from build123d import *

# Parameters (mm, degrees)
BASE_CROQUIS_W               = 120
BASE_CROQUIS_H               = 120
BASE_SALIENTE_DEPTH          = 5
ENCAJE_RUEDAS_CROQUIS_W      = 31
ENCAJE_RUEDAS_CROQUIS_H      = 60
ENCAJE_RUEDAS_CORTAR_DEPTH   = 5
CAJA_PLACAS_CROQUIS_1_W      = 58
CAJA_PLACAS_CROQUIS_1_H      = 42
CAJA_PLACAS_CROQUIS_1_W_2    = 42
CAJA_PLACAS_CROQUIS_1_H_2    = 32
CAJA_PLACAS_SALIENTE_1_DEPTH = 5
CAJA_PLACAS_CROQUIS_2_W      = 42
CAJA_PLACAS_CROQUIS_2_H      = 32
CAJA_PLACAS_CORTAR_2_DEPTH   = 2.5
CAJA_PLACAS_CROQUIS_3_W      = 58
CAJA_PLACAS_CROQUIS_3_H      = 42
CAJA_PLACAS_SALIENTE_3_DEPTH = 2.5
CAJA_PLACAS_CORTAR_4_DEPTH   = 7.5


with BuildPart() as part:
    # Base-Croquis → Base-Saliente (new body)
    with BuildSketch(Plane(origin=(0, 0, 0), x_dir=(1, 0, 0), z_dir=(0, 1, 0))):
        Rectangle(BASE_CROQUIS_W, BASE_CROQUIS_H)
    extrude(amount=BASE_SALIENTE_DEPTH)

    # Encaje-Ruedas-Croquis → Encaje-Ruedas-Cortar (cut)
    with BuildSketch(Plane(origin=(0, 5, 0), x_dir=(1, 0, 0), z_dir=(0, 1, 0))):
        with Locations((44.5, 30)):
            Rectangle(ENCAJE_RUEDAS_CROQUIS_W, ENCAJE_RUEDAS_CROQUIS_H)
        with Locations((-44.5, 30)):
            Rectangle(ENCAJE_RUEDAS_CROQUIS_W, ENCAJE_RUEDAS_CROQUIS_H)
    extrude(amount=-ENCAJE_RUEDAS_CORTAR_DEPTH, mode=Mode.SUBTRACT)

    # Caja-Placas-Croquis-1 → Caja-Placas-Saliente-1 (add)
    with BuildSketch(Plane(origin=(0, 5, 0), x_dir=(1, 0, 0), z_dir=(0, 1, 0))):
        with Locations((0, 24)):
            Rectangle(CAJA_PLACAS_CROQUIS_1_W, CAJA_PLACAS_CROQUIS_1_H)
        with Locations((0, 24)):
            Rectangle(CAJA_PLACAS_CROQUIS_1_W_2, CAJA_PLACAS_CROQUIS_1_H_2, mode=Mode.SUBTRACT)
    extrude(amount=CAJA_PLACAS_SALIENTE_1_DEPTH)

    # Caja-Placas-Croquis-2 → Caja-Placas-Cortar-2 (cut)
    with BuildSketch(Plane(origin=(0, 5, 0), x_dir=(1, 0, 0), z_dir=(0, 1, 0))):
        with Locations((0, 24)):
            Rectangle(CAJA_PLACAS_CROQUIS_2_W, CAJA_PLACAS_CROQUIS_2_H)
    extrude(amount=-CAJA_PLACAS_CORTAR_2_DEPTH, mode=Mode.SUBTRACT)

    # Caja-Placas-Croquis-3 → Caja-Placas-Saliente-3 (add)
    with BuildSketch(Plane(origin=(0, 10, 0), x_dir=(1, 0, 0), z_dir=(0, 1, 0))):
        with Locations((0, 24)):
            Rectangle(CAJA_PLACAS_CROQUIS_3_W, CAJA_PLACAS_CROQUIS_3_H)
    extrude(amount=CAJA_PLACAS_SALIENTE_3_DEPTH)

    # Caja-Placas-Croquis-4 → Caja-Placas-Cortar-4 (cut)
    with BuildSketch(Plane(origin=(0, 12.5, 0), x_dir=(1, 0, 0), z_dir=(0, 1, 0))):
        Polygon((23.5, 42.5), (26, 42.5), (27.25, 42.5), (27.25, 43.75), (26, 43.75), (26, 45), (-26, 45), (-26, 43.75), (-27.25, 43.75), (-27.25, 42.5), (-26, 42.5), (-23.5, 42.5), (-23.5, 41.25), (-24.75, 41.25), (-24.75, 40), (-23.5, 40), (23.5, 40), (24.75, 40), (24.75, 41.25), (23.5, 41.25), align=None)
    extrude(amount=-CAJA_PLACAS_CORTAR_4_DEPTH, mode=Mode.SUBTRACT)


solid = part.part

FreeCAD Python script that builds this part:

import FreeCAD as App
import Part
import Sketcher

V = App.Vector
Q = App.Units.Quantity

doc = App.newDocument("Part")
params = doc.addObject("Spreadsheet::Sheet", "Params")
for row, (alias, value) in enumerate([
    ("sketch1_width", "120 mm"),
    ("pad1_length", "5 mm"),
    ("sketch2_width", "31 mm"),
    ("sketch2_height", "60 mm"),
    ("pocket1_length", "5 mm"),
    ("sketch3_width", "58 mm"),
    ("sketch3_width2", "42 mm"),
    ("sketch3_height", "32 mm"),
    ("pad2_length", "5 mm"),
    ("sketch4_width", "42 mm"),
    ("sketch4_height", "32 mm"),
    ("pocket2_length", "2.5 mm"),
    ("sketch5_width", "58 mm"),
    ("sketch5_height", "42 mm"),
    ("pad3_length", "2.5 mm"),
    ("sketch6_width", "52 mm"),
    ("sketch6_width2", "49.5 mm"),
    ("pocket3_length", "7.5 mm"),
], start=1):
    params.set(f"A{row}", alias)
    params.set(f"B{row}", "=" + value)
    params.setAlias(f"B{row}", alias)

body = doc.addObject("PartDesign::Body", "Body")

# Sketch on XZ plane
sketch1 = body.newObject("Sketcher::SketchObject", "Sketch")
sketch1.AttachmentSupport = (doc.getObject("XZ_Plane"), [""])
sketch1.MapMode = "FlatFace"
sketch1.addGeometry(Part.LineSegment(V(-60, -60, 0), V(-60, 60, 0)), False)
sketch1.addGeometry(Part.LineSegment(V(-60, 60, 0), V(60, 60, 0)), False)
sketch1.addGeometry(Part.LineSegment(V(60, 60, 0), V(60, -60, 0)), False)
sketch1.addGeometry(Part.LineSegment(V(60, -60, 0), V(-60, -60, 0)), False)
sketch1.addConstraint(Sketcher.Constraint("Coincident", 0, 2, 1, 1))
sketch1.addConstraint(Sketcher.Constraint("Coincident", 1, 2, 2, 1))
sketch1.addConstraint(Sketcher.Constraint("Coincident", 2, 2, 3, 1))
sketch1.addConstraint(Sketcher.Constraint("Coincident", 3, 2, 0, 1))
sketch1.addConstraint(Sketcher.Constraint("Vertical", 0))
sketch1.addConstraint(Sketcher.Constraint("Horizontal", 1))
sketch1.addConstraint(Sketcher.Constraint("Vertical", 2))
sketch1.addConstraint(Sketcher.Constraint("Horizontal", 3))
sketch1.addConstraint(Sketcher.Constraint("Symmetric", 0, 2, 2, 2, -1, 1))
sketch1.addConstraint(Sketcher.Constraint("Equal", 3, 0))
sketch1.addConstraint(Sketcher.Constraint("DistanceX", 1, 1, 1, 2, Q("120 mm")))
sketch1.setExpression("Constraints[10]", "Params.sketch1_width")
pad1 = body.newObject("PartDesign::Pad", "Pad")
pad1.Profile = sketch1
pad1.setExpression("Length", "Params.pad1_length")
pad1.Reversed = True

# Sketch on XZ plane
sketch2 = body.newObject("Sketcher::SketchObject", "Sketch001")
sketch2.AttachmentSupport = (doc.getObject("XZ_Plane"), [""])
sketch2.MapMode = "FlatFace"
sketch2.AttachmentOffset = App.Placement(V(0, 0, -5), App.Rotation())
sketch2.addGeometry(Part.LineSegment(V(29, -60, 0), V(29, 0, 0)), False)
sketch2.addGeometry(Part.LineSegment(V(29, 0, 0), V(60, 0, 0)), False)
sketch2.addGeometry(Part.LineSegment(V(60, 0, 0), V(60, -60, 0)), False)
sketch2.addGeometry(Part.LineSegment(V(60, -60, 0), V(29, -60, 0)), False)
sketch2.addGeometry(Part.LineSegment(V(-60, -60, 0), V(-60, 0, 0)), False)
sketch2.addGeometry(Part.LineSegment(V(-60, 0, 0), V(-29, 0, 0)), False)
sketch2.addGeometry(Part.LineSegment(V(-29, 0, 0), V(-29, -60, 0)), False)
sketch2.addGeometry(Part.LineSegment(V(-29, -60, 0), V(-60, -60, 0)), False)
sketch2.addConstraint(Sketcher.Constraint("Coincident", 0, 2, 1, 1))
sketch2.addConstraint(Sketcher.Constraint("Coincident", 1, 2, 2, 1))
sketch2.addConstraint(Sketcher.Constraint("Coincident", 2, 2, 3, 1))
sketch2.addConstraint(Sketcher.Constraint("Coincident", 3, 2, 0, 1))
sketch2.addConstraint(Sketcher.Constraint("Coincident", 4, 2, 5, 1))
sketch2.addConstraint(Sketcher.Constraint("Coincident", 5, 2, 6, 1))
sketch2.addConstraint(Sketcher.Constraint("Coincident", 6, 2, 7, 1))
sketch2.addConstraint(Sketcher.Constraint("Coincident", 7, 2, 4, 1))
sketch2.addConstraint(Sketcher.Constraint("Vertical", 0))
sketch2.addConstraint(Sketcher.Constraint("Horizontal", 1))
sketch2.addConstraint(Sketcher.Constraint("Vertical", 2))
sketch2.addConstraint(Sketcher.Constraint("Horizontal", 3))
sketch2.addConstraint(Sketcher.Constraint("Vertical", 4))
sketch2.addConstraint(Sketcher.Constraint("Horizontal", 5))
sketch2.addConstraint(Sketcher.Constraint("Vertical", 6))
sketch2.addConstraint(Sketcher.Constraint("Horizontal", 7))
sketch2.addConstraint(Sketcher.Constraint("Symmetric", 1, 2, 4, 2, -1, 1))
sketch2.addConstraint(Sketcher.Constraint("Symmetric", 0, 2, 5, 2, -2))
sketch2.addConstraint(Sketcher.Constraint("Horizontal", 3, 2, 6, 2))
sketch2.addConstraint(Sketcher.Constraint("DistanceX", 1, 1, 1, 2, Q("31 mm")))
sketch2.addConstraint(Sketcher.Constraint("DistanceY", 0, 1, 0, 2, Q("60 mm")))
sketch2.addConstraint(Sketcher.Constraint("DistanceX", -1, 1, 0, 2, Q("29 mm")))
sketch2.setExpression("Constraints[19]", "Params.sketch2_width")
sketch2.setExpression("Constraints[20]", "Params.sketch2_height")
pocket1 = body.newObject("PartDesign::Pocket", "Pocket")
pocket1.Profile = sketch2
pocket1.setExpression("Length", "Params.pocket1_length")
pocket1.Reversed = True

# Sketch on XZ plane
sketch3 = body.newObject("Sketcher::SketchObject", "Sketch002")
sketch3.AttachmentSupport = (doc.getObject("XZ_Plane"), [""])
sketch3.MapMode = "FlatFace"
sketch3.AttachmentOffset = App.Placement(V(0, 0, -5), App.Rotation())
sketch3.addGeometry(Part.LineSegment(V(-29, -45, 0), V(-29, -3, 0)), False)
sketch3.addGeometry(Part.LineSegment(V(-29, -3, 0), V(29, -3, 0)), False)
sketch3.addGeometry(Part.LineSegment(V(29, -3, 0), V(29, -45, 0)), False)
sketch3.addGeometry(Part.LineSegment(V(29, -45, 0), V(-29, -45, 0)), False)
sketch3.addGeometry(Part.LineSegment(V(21, -8, 0), V(-21, -8, 0)), False)
sketch3.addGeometry(Part.LineSegment(V(-21, -8, 0), V(-21, -40, 0)), False)
sketch3.addGeometry(Part.LineSegment(V(-21, -40, 0), V(21, -40, 0)), False)
sketch3.addGeometry(Part.LineSegment(V(21, -40, 0), V(21, -8, 0)), False)
sketch3.addConstraint(Sketcher.Constraint("Coincident", 0, 2, 1, 1))
sketch3.addConstraint(Sketcher.Constraint("Coincident", 1, 2, 2, 1))
sketch3.addConstraint(Sketcher.Constraint("Coincident", 2, 2, 3, 1))
sketch3.addConstraint(Sketcher.Constraint("Coincident", 3, 2, 0, 1))
sketch3.addConstraint(Sketcher.Constraint("Coincident", 4, 2, 5, 1))
sketch3.addConstraint(Sketcher.Constraint("Coincident", 5, 2, 6, 1))
sketch3.addConstraint(Sketcher.Constraint("Coincident", 6, 2, 7, 1))
sketch3.addConstraint(Sketcher.Constraint("Coincident", 7, 2, 4, 1))
sketch3.addConstraint(Sketcher.Constraint("Vertical", 0))
sketch3.addConstraint(Sketcher.Constraint("Horizontal", 1))
sketch3.addConstraint(Sketcher.Constraint("Vertical", 2))
sketch3.addConstraint(Sketcher.Constraint("Horizontal", 3))
sketch3.addConstraint(Sketcher.Constraint("Horizontal", 4))
sketch3.addConstraint(Sketcher.Constraint("Vertical", 5))
sketch3.addConstraint(Sketcher.Constraint("Horizontal", 6))
sketch3.addConstraint(Sketcher.Constraint("Vertical", 7))
sketch3.addConstraint(Sketcher.Constraint("Equal", 6, 0))
sketch3.addConstraint(Sketcher.Constraint("DistanceX", 1, 1, 1, 2, Q("58 mm")))
sketch3.addConstraint(Sketcher.Constraint("DistanceX", 4, 2, 4, 1, Q("42 mm")))
sketch3.addConstraint(Sketcher.Constraint("DistanceY", 5, 2, 5, 1, Q("32 mm")))
sketch3.addConstraint(Sketcher.Constraint("DistanceX", 0, 2, -1, 1, Q("29 mm")))
sketch3.addConstraint(Sketcher.Constraint("DistanceY", 0, 2, -1, 1, Q("3 mm")))
sketch3.addConstraint(Sketcher.Constraint("DistanceX", 4, 2, -1, 1, Q("21 mm")))
sketch3.addConstraint(Sketcher.Constraint("DistanceY", 4, 2, -1, 1, Q("8 mm")))
sketch3.setExpression("Constraints[17]", "Params.sketch3_width")
sketch3.setExpression("Constraints[18]", "Params.sketch3_width2")
sketch3.setExpression("Constraints[19]", "Params.sketch3_height")
pad2 = body.newObject("PartDesign::Pad", "Pad001")
pad2.Profile = sketch3
pad2.setExpression("Length", "Params.pad2_length")
pad2.Reversed = True

# Sketch on XZ plane
sketch4 = body.newObject("Sketcher::SketchObject", "Sketch003")
sketch4.AttachmentSupport = (doc.getObject("XZ_Plane"), [""])
sketch4.MapMode = "FlatFace"
sketch4.AttachmentOffset = App.Placement(V(0, 0, -5), App.Rotation())
sketch4.addGeometry(Part.LineSegment(V(-21, -40, 0), V(-21, -8, 0)), False)
sketch4.addGeometry(Part.LineSegment(V(-21, -8, 0), V(21, -8, 0)), False)
sketch4.addGeometry(Part.LineSegment(V(21, -8, 0), V(21, -40, 0)), False)
sketch4.addGeometry(Part.LineSegment(V(21, -40, 0), V(-21, -40, 0)), False)
sketch4.addConstraint(Sketcher.Constraint("Coincident", 0, 2, 1, 1))
sketch4.addConstraint(Sketcher.Constraint("Coincident", 1, 2, 2, 1))
sketch4.addConstraint(Sketcher.Constraint("Coincident", 2, 2, 3, 1))
sketch4.addConstraint(Sketcher.Constraint("Coincident", 3, 2, 0, 1))
sketch4.addConstraint(Sketcher.Constraint("Vertical", 0))
sketch4.addConstraint(Sketcher.Constraint("Horizontal", 1))
sketch4.addConstraint(Sketcher.Constraint("Vertical", 2))
sketch4.addConstraint(Sketcher.Constraint("Horizontal", 3))
sketch4.addConstraint(Sketcher.Constraint("DistanceX", 1, 1, 1, 2, Q("42 mm")))
sketch4.addConstraint(Sketcher.Constraint("DistanceY", 0, 1, 0, 2, Q("32 mm")))
sketch4.addConstraint(Sketcher.Constraint("DistanceX", 0, 2, -1, 1, Q("21 mm")))
sketch4.addConstraint(Sketcher.Constraint("DistanceY", 0, 2, -1, 1, Q("8 mm")))
sketch4.setExpression("Constraints[8]", "Params.sketch4_width")
sketch4.setExpression("Constraints[9]", "Params.sketch4_height")
pocket2 = body.newObject("PartDesign::Pocket", "Pocket001")
pocket2.Profile = sketch4
pocket2.setExpression("Length", "Params.pocket2_length")
pocket2.Reversed = True

# Sketch on XZ plane
sketch5 = body.newObject("Sketcher::SketchObject", "Sketch004")
sketch5.AttachmentSupport = (doc.getObject("XZ_Plane"), [""])
sketch5.MapMode = "FlatFace"
sketch5.AttachmentOffset = App.Placement(V(0, 0, -10), App.Rotation())
sketch5.addGeometry(Part.LineSegment(V(-29, -45, 0), V(-29, -3, 0)), False)
sketch5.addGeometry(Part.LineSegment(V(-29, -3, 0), V(29, -3, 0)), False)
sketch5.addGeometry(Part.LineSegment(V(29, -3, 0), V(29, -45, 0)), False)
sketch5.addGeometry(Part.LineSegment(V(29, -45, 0), V(-29, -45, 0)), False)
sketch5.addConstraint(Sketcher.Constraint("Coincident", 0, 2, 1, 1))
sketch5.addConstraint(Sketcher.Constraint("Coincident", 1, 2, 2, 1))
sketch5.addConstraint(Sketcher.Constraint("Coincident", 2, 2, 3, 1))
sketch5.addConstraint(Sketcher.Constraint("Coincident", 3, 2, 0, 1))
sketch5.addConstraint(Sketcher.Constraint("Vertical", 0))
sketch5.addConstraint(Sketcher.Constraint("Horizontal", 1))
sketch5.addConstraint(Sketcher.Constraint("Vertical", 2))
sketch5.addConstraint(Sketcher.Constraint("Horizontal", 3))
sketch5.addConstraint(Sketcher.Constraint("DistanceX", 1, 1, 1, 2, Q("58 mm")))
sketch5.addConstraint(Sketcher.Constraint("DistanceY", 0, 1, 0, 2, Q("42 mm")))
sketch5.addConstraint(Sketcher.Constraint("DistanceX", 0, 2, -1, 1, Q("29 mm")))
sketch5.addConstraint(Sketcher.Constraint("DistanceY", 0, 2, -1, 1, Q("3 mm")))
sketch5.setExpression("Constraints[8]", "Params.sketch5_width")
sketch5.setExpression("Constraints[9]", "Params.sketch5_height")
pad3 = body.newObject("PartDesign::Pad", "Pad002")
pad3.Profile = sketch5
pad3.setExpression("Length", "Params.pad3_length")
pad3.Reversed = True

# Sketch on XZ plane
sketch6 = body.newObject("Sketcher::SketchObject", "Sketch005")
sketch6.AttachmentSupport = (doc.getObject("XZ_Plane"), [""])
sketch6.MapMode = "FlatFace"
sketch6.AttachmentOffset = App.Placement(V(0, 0, -12.5), App.Rotation())
sketch6.addGeometry(Part.LineSegment(V(23.5, -42.5, 0), V(27.25, -42.5, 0)), False)
sketch6.addGeometry(Part.LineSegment(V(27.25, -42.5, 0), V(27.25, -43.75, 0)), False)
sketch6.addGeometry(Part.LineSegment(V(27.25, -43.75, 0), V(26, -43.75, 0)), False)
sketch6.addGeometry(Part.LineSegment(V(26, -43.75, 0), V(26, -45, 0)), False)
sketch6.addGeometry(Part.LineSegment(V(26, -45, 0), V(-26, -45, 0)), False)
sketch6.addGeometry(Part.LineSegment(V(-26, -45, 0), V(-26, -43.75, 0)), False)
sketch6.addGeometry(Part.LineSegment(V(-26, -43.75, 0), V(-27.25, -43.75, 0)), False)
sketch6.addGeometry(Part.LineSegment(V(-27.25, -43.75, 0), V(-27.25, -42.5, 0)), False)
sketch6.addGeometry(Part.LineSegment(V(-27.25, -42.5, 0), V(-23.5, -42.5, 0)), False)
sketch6.addGeometry(Part.LineSegment(V(-23.5, -42.5, 0), V(-23.5, -41.25, 0)), False)
sketch6.addGeometry(Part.LineSegment(V(-23.5, -41.25, 0), V(-24.75, -41.25, 0)), False)
sketch6.addGeometry(Part.LineSegment(V(-24.75, -41.25, 0), V(-24.75, -40, 0)), False)
sketch6.addGeometry(Part.LineSegment(V(-24.75, -40, 0), V(24.75, -40, 0)), False)
sketch6.addGeometry(Part.LineSegment(V(24.75, -40, 0), V(24.75, -41.25, 0)), False)
sketch6.addGeometry(Part.LineSegment(V(24.75, -41.25, 0), V(23.5, -41.25, 0)), False)
sketch6.addGeometry(Part.LineSegment(V(23.5, -41.25, 0), V(23.5, -42.5, 0)), False)
sketch6.addConstraint(Sketcher.Constraint("Coincident", 0, 2, 1, 1))
sketch6.addConstraint(Sketcher.Constraint("Coincident", 1, 2, 2, 1))
sketch6.addConstraint(Sketcher.Constraint("Coincident", 2, 2, 3, 1))
sketch6.addConstraint(Sketcher.Constraint("Coincident", 3, 2, 4, 1))
sketch6.addConstraint(Sketcher.Constraint("Coincident", 4, 2, 5, 1))
sketch6.addConstraint(Sketcher.Constraint("Coincident", 5, 2, 6, 1))
sketch6.addConstraint(Sketcher.Constraint("Coincident", 6, 2, 7, 1))
sketch6.addConstraint(Sketcher.Constraint("Coincident", 7, 2, 8, 1))
sketch6.addConstraint(Sketcher.Constraint("Coincident", 8, 2, 9, 1))
sketch6.addConstraint(Sketcher.Constraint("Coincident", 9, 2, 10, 1))
sketch6.addConstraint(Sketcher.Constraint("Coincident", 10, 2, 11, 1))
sketch6.addConstraint(Sketcher.Constraint("Coincident", 11, 2, 12, 1))
sketch6.addConstraint(Sketcher.Constraint("Coincident", 12, 2, 13, 1))
sketch6.addConstraint(Sketcher.Constraint("Coincident", 13, 2, 14, 1))
sketch6.addConstraint(Sketcher.Constraint("Coincident", 14, 2, 15, 1))
sketch6.addConstraint(Sketcher.Constraint("Coincident", 15, 2, 0, 1))
sketch6.addConstraint(Sketcher.Constraint("Horizontal", 0))
sketch6.addConstraint(Sketcher.Constraint("Vertical", 1))
sketch6.addConstraint(Sketcher.Constraint("Horizontal", 2))
sketch6.addConstraint(Sketcher.Constraint("Vertical", 3))
sketch6.addConstraint(Sketcher.Constraint("Horizontal", 4))
sketch6.addConstraint(Sketcher.Constraint("Vertical", 5))
sketch6.addConstraint(Sketcher.Constraint("Horizontal", 6))
sketch6.addConstraint(Sketcher.Constraint("Vertical", 7))
sketch6.addConstraint(Sketcher.Constraint("Horizontal", 8))
sketch6.addConstraint(Sketcher.Constraint("Vertical", 9))
sketch6.addConstraint(Sketcher.Constraint("Horizontal", 10))
sketch6.addConstraint(Sketcher.Constraint("Vertical", 11))
sketch6.addConstraint(Sketcher.Constraint("Horizontal", 12))
sketch6.addConstraint(Sketcher.Constraint("Vertical", 13))
sketch6.addConstraint(Sketcher.Constraint("Horizontal", 14))
sketch6.addConstraint(Sketcher.Constraint("Vertical", 15))
sketch6.addConstraint(Sketcher.Constraint("Symmetric", 2, 2, 5, 2, -2))
sketch6.addConstraint(Sketcher.Constraint("Symmetric", 0, 2, 7, 2, -2))
sketch6.addConstraint(Sketcher.Constraint("Symmetric", 10, 2, 13, 2, -2))
sketch6.addConstraint(Sketcher.Constraint("Equal", 0, 8))
sketch6.addConstraint(Sketcher.Constraint("Equal", 6, 10))
sketch6.addConstraint(Sketcher.Constraint("Equal", 14, 1))
sketch6.addConstraint(Sketcher.Constraint("Equal", 1, 3))
sketch6.addConstraint(Sketcher.Constraint("Equal", 7, 9))
sketch6.addConstraint(Sketcher.Constraint("Equal", 9, 11))
sketch6.addConstraint(Sketcher.Constraint("DistanceX", 4, 2, 4, 1, Q("52 mm")))
sketch6.addConstraint(Sketcher.Constraint("DistanceX", 12, 1, 12, 2, Q("49.5 mm")))
sketch6.addConstraint(Sketcher.Constraint("DistanceY", 3, 2, -1, 1, Q("45 mm")))
sketch6.addConstraint(Sketcher.Constraint("DistanceY", 11, 2, -1, 1, Q("40 mm")))
sketch6.setExpression("Constraints[41]", "Params.sketch6_width")
sketch6.setExpression("Constraints[42]", "Params.sketch6_width2")
pocket3 = body.newObject("PartDesign::Pocket", "Pocket002")
pocket3.Profile = sketch6
pocket3.setExpression("Length", "Params.pocket3_length")
pocket3.Reversed = True

doc.recompute()
